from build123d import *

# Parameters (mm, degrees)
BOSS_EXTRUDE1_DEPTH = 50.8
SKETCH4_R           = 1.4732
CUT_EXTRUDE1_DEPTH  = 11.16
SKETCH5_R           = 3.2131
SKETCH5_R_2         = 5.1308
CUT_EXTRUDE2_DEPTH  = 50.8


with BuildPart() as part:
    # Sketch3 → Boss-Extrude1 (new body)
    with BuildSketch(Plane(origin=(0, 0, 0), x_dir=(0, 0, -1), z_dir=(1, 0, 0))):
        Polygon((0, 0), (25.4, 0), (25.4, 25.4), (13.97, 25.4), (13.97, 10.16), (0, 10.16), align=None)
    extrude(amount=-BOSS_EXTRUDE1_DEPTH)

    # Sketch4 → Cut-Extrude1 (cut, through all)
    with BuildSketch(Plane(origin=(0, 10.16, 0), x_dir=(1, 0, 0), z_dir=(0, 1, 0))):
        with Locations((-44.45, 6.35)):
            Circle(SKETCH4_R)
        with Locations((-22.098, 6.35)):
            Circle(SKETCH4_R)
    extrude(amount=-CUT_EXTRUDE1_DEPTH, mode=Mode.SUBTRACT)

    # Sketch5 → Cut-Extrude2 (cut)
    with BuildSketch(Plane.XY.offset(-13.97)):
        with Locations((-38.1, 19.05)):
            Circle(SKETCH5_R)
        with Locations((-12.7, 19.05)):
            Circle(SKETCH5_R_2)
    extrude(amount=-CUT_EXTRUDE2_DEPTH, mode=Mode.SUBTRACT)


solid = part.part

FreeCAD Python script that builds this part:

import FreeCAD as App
import Part
import Sketcher
from FreeCAD import Vector
Q = App.Units.Quantity


def add_polygon(sketch, points):
    """Adds a closed chain of lines whose ends are joined by coincident constraints."""
    first, n = sketch.GeometryCount, len(points)
    for a, b in zip(points, points[1:] + points[:1]):
        sketch.addGeometry(Part.LineSegment(App.Vector(*a, 0), App.Vector(*b, 0)), False)
    for i in range(n):
        sketch.addConstraint(Sketcher.Constraint("Coincident", first + i, 2, first + (i + 1) % n, 1))

doc = App.newDocument("Part")
body = doc.addObject("PartDesign::Body", "Body")

sketch1 = body.newObject("Sketcher::SketchObject", "Sketch")
sketch1.AttachmentSupport = (doc.getObject("YZ_Plane"), [""])
sketch1.MapMode = "FlatFace"
add_polygon(sketch1, [(0, 0), (0, -25), (25, -25), (25, -14), (10, -14), (10, 0)])
sketch1.addConstraint(Sketcher.Constraint("Vertical", 0))
sketch1.addConstraint(Sketcher.Constraint("Horizontal", 1))
sketch1.addConstraint(Sketcher.Constraint("Vertical", 2))
sketch1.addConstraint(Sketcher.Constraint("Horizontal", 3))
sketch1.addConstraint(Sketcher.Constraint("Vertical", 4))
sketch1.addConstraint(Sketcher.Constraint("Horizontal", 5))
sketch1.addConstraint(Sketcher.Constraint("Coincident", 5, 2, -1, 1))
sketch1.addConstraint(Sketcher.Constraint("Equal", 1, 0))
sketch1.addConstraint(Sketcher.Constraint("DistanceX", 1, 1, 1, 2, Q("1 in")))
sketch1.addConstraint(Sketcher.Constraint("DistanceX", 3, 2, 3, 1, Q("0.6 in")))
sketch1.addConstraint(Sketcher.Constraint("DistanceY", 2, 1, 2, 2, Q("0.45 in")))
pad1 = body.newObject("PartDesign::Pad", "Pad")
pad1.Profile = sketch1
pad1.Length = Q("2 in")
pad1.Reversed = True

sketch2 = body.newObject("Sketcher::SketchObject", "Sketch001")
sketch2.AttachmentSupport = (doc.getObject("XZ_Plane"), [""])
sketch2.MapMode = "FlatFace"
sketch2.AttachmentOffset = App.Placement(Vector(0, 0, -0.4 * 25.4), App.Rotation())
sketch2.addGeometry(Part.Circle(Vector(-44.5, -6.3, 0), Vector(0, 0, 1), 1.5), False)
sketch2.addGeometry(Part.Circle(Vector(-22.1, -6.3, 0), Vector(0, 0, 1), 1.5), False)
sketch2.addConstraint(Sketcher.Constraint("Equal", 0, 1))
sketch2.addConstraint(Sketcher.Constraint("Horizontal", 0, 3, 1, 3))
sketch2.addConstraint(Sketcher.Constraint("Diameter", 0, Q("0.116 in")))
sketch2.addConstraint(Sketcher.Constraint("DistanceX", 0, 3, -1, 1, Q("1.75 in")))
sketch2.addConstraint(Sketcher.Constraint("DistanceY", 0, 3, -1, 1, Q("0.25 in")))
sketch2.addConstraint(Sketcher.Constraint("DistanceX", 1, 3, -1, 1, Q("0.87 in")))
pocket1 = body.newObject("PartDesign::Pocket", "Pocket")
pocket1.Profile = sketch2
pocket1.Type = "ThroughAll"
pocket1.Reversed = True

sketch3 = body.newObject("Sketcher::SketchObject", "Sketch002")
sketch3.AttachmentSupport = (doc.getObject("XY_Plane"), [""])
sketch3.MapMode = "FlatFace"
sketch3.AttachmentOffset = App.Placement(Vector(0, 0, -0.55 * 25.4), App.Rotation())
sketch3.addGeometry(Part.Circle(Vector(-38.1, 19.1, 0), Vector(0, 0, 1), 3.2), False)
sketch3.addGeometry(Part.Circle(Vector(-12.7, 19.1, 0), Vector(0, 0, 1), 5.1), False)
sketch3.addConstraint(Sketcher.Constraint("Horizontal", 0, 3, 1, 3))
sketch3.addConstraint(Sketcher.Constraint("Diameter", 0, Q("0.253 in")))
sketch3.addConstraint(Sketcher.Constraint("Diameter", 1, Q("0.404 in")))
sketch3.addConstraint(Sketcher.Constraint("DistanceX", 0, 3, 1, 3, Q("1 in")))
sketch3.addConstraint(Sketcher.Constraint("DistanceX", 0, 3, -1, 1, Q("1.5 in")))
sketch3.addConstraint(Sketcher.Constraint("DistanceY", -1, 1, 0, 3, Q("0.75 in")))
pocket2 = body.newObject("PartDesign::Pocket", "Pocket001")
pocket2.Profile = sketch3
pocket2.Length = Q("2 in")

doc.recompute()
